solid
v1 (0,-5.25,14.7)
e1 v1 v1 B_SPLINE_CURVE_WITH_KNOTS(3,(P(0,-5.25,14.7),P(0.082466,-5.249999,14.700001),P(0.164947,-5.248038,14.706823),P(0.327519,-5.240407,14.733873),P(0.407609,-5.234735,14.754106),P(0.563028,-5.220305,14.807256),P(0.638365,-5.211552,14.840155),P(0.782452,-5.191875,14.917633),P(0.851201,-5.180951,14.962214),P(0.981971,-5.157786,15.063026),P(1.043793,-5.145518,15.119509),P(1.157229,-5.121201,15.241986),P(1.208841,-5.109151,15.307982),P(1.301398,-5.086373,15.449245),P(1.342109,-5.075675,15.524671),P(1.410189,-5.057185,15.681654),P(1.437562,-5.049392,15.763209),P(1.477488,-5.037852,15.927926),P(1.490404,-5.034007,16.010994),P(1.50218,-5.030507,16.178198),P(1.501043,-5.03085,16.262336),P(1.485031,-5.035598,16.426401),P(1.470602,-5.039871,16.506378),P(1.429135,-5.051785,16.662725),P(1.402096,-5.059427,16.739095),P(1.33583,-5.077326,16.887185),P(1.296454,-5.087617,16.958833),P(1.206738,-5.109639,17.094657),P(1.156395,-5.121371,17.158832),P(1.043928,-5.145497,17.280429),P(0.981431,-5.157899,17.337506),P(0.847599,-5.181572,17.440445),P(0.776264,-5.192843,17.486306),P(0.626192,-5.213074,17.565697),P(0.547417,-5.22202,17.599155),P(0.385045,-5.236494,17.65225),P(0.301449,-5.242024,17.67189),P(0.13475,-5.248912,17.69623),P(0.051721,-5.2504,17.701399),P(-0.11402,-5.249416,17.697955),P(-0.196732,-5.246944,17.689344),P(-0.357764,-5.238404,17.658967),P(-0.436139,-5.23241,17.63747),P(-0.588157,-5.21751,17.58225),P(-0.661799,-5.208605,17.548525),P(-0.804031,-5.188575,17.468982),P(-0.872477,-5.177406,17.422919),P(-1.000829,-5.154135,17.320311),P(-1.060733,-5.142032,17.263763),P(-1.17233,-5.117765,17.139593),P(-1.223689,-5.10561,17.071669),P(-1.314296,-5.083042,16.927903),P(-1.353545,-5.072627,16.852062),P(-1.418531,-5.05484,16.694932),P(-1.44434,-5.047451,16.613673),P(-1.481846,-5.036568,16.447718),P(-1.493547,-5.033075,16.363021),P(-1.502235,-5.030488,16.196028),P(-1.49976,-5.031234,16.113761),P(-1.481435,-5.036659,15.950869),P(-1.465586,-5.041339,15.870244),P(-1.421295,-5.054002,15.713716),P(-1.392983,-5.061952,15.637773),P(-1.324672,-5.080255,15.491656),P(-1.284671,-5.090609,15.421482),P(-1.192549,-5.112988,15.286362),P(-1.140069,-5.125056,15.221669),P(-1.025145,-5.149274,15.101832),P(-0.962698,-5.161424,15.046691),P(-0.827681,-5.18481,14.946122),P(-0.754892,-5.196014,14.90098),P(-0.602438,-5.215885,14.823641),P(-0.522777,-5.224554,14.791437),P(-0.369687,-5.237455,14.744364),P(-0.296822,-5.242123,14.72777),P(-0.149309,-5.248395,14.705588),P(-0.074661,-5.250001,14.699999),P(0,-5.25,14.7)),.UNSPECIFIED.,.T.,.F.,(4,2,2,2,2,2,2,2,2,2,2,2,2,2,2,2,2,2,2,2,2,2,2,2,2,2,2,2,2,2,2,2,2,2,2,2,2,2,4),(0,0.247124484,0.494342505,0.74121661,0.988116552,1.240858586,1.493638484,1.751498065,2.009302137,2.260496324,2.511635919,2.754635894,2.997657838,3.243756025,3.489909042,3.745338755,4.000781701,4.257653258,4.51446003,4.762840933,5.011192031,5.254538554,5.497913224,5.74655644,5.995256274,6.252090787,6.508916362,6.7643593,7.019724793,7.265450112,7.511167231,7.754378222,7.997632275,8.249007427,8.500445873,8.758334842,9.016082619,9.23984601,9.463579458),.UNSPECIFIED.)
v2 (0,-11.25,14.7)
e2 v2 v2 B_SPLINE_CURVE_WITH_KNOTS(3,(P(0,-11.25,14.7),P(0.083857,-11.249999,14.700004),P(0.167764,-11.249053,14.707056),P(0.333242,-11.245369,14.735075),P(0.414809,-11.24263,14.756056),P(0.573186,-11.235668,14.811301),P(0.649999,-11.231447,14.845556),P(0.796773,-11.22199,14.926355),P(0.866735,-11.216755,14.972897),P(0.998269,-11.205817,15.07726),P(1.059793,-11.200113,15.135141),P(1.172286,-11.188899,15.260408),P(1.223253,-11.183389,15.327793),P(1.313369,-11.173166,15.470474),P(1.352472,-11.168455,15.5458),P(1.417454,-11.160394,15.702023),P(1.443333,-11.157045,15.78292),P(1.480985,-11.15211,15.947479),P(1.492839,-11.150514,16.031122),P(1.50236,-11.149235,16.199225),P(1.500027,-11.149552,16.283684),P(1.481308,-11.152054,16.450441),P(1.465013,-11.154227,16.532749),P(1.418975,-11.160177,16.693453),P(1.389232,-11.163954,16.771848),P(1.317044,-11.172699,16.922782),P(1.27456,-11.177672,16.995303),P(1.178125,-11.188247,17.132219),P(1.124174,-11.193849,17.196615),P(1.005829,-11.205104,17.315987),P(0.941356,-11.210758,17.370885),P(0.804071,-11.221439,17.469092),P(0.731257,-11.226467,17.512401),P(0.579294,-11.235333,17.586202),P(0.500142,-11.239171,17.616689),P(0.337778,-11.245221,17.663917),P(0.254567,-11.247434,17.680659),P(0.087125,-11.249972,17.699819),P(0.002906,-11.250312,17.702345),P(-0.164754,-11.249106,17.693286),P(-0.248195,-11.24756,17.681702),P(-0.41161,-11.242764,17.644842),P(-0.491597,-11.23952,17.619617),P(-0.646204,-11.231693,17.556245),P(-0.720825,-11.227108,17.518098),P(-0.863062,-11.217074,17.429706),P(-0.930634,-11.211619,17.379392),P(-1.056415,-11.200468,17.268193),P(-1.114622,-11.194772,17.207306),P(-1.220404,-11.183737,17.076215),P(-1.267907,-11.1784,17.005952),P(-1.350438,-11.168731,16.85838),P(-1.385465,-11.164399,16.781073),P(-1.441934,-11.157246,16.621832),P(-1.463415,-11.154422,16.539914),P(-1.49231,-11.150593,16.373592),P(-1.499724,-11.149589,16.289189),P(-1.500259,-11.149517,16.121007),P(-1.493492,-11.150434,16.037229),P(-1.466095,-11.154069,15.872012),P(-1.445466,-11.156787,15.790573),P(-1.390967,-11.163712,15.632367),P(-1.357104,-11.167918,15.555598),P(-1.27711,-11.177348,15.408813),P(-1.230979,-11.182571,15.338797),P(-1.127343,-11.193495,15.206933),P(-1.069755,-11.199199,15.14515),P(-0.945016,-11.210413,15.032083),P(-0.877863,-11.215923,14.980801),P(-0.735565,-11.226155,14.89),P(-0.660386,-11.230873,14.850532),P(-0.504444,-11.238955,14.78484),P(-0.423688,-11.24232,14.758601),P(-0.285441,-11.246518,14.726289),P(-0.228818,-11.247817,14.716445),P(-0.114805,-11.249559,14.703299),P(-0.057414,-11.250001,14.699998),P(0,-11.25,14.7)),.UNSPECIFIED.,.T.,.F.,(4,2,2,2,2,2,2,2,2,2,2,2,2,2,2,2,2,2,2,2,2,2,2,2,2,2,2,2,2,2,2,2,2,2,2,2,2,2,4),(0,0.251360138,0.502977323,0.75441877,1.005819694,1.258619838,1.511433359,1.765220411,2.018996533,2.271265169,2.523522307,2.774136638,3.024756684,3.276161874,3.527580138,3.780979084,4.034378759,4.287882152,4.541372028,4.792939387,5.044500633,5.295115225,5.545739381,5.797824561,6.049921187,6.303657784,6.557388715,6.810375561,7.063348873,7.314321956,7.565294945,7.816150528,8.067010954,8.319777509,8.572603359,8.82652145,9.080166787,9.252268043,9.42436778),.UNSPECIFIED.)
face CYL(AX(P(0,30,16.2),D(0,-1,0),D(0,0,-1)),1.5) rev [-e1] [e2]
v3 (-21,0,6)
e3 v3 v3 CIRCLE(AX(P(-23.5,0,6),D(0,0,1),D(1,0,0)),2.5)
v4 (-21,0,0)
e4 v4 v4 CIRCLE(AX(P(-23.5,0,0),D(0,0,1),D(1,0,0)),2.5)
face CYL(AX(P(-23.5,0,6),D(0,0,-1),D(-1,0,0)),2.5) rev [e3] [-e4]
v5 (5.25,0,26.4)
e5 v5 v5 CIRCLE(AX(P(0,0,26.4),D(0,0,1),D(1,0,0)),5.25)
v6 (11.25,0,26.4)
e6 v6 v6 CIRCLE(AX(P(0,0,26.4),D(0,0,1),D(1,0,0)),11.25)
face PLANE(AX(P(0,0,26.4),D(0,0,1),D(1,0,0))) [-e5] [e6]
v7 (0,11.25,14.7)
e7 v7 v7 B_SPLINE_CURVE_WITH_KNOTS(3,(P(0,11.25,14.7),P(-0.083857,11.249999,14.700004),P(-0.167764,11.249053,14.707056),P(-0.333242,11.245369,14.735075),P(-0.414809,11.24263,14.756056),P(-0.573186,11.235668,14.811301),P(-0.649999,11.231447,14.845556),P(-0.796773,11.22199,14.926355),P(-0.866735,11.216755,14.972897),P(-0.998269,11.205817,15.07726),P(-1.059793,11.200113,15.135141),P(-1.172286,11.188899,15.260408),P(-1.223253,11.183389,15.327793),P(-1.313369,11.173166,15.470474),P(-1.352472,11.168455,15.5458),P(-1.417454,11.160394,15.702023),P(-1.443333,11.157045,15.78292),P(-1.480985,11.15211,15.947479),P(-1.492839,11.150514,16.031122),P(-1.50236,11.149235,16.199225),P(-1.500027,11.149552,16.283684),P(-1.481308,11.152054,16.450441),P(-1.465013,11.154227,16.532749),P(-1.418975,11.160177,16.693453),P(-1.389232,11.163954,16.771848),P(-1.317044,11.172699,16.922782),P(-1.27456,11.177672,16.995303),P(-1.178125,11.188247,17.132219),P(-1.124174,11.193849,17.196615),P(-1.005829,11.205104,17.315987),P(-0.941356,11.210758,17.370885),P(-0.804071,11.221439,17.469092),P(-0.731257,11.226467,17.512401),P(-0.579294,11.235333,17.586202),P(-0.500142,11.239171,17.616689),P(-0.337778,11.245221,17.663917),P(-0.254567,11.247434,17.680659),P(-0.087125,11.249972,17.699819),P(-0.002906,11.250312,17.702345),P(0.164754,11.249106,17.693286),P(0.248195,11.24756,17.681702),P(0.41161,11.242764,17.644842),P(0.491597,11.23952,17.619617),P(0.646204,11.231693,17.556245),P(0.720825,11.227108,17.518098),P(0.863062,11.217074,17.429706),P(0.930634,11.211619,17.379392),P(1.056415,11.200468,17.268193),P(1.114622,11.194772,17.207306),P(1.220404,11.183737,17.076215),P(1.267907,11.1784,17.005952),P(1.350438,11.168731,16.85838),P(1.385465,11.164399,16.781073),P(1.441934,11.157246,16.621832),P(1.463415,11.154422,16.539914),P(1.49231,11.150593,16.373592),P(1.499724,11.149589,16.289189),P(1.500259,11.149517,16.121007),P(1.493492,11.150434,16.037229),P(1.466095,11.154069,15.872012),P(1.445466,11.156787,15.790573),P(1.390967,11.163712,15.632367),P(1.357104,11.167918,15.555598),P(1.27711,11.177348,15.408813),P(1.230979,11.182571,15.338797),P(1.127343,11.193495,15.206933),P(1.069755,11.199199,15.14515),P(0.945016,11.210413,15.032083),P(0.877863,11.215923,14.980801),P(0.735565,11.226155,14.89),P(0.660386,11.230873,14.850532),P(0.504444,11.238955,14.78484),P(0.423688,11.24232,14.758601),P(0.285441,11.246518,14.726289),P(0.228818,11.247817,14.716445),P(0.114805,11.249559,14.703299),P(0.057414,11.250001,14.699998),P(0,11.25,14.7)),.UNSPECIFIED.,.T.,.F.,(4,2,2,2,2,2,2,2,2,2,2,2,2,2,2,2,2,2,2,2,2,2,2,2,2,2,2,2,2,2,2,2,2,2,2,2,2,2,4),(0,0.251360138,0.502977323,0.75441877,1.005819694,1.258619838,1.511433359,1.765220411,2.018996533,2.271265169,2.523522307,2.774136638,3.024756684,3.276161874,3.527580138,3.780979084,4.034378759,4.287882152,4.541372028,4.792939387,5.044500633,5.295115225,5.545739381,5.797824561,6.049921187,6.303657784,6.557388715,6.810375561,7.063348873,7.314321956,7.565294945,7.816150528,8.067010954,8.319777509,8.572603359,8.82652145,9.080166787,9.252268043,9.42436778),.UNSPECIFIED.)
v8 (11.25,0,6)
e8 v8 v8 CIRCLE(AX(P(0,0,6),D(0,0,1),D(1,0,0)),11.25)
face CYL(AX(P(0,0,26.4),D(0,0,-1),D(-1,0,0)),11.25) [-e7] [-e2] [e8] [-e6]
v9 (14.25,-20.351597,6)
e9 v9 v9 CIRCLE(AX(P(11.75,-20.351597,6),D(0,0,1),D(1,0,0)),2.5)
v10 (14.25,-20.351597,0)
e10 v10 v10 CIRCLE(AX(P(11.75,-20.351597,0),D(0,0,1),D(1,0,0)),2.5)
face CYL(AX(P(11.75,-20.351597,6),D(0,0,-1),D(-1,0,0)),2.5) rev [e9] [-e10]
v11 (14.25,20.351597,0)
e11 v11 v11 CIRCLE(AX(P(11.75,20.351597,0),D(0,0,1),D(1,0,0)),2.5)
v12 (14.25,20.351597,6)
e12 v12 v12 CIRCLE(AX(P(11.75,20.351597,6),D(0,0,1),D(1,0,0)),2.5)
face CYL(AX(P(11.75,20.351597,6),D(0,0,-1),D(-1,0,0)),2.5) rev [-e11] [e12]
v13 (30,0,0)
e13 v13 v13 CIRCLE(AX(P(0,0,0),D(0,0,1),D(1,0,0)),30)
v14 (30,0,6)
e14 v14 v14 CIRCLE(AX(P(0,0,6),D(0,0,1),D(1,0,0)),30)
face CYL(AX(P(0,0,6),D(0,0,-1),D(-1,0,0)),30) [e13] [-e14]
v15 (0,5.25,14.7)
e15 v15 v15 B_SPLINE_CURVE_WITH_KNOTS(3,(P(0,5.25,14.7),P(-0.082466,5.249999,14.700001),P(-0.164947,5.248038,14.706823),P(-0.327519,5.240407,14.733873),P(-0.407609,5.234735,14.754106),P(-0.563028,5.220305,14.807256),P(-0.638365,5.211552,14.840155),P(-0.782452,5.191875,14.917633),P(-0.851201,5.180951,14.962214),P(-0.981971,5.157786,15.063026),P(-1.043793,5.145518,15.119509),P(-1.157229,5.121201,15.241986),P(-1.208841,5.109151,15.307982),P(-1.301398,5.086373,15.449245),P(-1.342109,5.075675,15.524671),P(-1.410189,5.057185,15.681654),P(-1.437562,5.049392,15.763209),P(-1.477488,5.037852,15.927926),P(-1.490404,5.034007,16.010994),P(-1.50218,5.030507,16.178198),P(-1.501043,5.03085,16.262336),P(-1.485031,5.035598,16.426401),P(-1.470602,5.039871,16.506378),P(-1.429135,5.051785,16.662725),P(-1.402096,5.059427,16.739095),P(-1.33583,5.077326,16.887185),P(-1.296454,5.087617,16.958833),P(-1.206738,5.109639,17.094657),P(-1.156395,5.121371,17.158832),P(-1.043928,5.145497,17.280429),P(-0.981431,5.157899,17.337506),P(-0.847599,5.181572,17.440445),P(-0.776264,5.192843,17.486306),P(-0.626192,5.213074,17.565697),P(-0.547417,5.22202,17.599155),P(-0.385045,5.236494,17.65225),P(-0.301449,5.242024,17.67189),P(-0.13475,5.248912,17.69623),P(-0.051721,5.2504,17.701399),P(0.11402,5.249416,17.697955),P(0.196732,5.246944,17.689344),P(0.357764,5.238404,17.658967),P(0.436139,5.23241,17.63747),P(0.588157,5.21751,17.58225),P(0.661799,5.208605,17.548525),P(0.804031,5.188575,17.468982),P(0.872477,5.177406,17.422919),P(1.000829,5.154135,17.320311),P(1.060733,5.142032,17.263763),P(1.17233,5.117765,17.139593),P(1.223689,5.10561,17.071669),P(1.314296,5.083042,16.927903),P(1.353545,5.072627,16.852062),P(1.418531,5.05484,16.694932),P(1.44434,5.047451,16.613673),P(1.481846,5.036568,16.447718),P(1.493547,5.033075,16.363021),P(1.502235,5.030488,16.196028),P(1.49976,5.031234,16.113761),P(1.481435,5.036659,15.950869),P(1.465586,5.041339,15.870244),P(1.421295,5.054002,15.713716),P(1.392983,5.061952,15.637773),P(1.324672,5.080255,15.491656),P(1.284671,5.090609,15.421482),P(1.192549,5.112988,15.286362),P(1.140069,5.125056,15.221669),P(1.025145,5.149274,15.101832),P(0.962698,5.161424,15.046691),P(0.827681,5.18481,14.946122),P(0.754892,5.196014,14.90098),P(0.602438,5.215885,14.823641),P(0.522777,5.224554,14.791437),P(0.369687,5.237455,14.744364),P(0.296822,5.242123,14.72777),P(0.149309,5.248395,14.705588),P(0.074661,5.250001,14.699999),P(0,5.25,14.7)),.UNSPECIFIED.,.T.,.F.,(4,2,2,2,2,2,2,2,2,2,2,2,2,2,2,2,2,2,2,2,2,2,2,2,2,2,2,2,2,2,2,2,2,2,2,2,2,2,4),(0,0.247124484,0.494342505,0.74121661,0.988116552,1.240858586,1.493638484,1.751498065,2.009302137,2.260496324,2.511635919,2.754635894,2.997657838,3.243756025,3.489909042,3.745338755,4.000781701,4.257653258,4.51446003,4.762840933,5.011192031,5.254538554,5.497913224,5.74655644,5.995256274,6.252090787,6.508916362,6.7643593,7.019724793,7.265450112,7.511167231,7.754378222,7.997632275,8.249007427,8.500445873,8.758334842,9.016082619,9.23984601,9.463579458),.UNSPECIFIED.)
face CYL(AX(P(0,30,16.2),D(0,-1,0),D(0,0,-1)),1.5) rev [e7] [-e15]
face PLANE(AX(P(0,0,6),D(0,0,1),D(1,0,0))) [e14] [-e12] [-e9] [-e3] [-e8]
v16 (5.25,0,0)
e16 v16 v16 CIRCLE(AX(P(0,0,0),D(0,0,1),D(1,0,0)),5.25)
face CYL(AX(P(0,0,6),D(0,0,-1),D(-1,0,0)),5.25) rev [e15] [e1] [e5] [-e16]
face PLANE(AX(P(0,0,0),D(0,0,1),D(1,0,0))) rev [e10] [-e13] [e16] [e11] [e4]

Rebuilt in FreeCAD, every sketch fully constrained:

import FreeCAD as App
import Part
import Sketcher
Q = App.Units.Quantity

doc = App.newDocument("Part")
body = doc.addObject("PartDesign::Body", "Body")

sketch1 = body.newObject("Sketcher::SketchObject", "Sketch")
sketch1.AttachmentSupport = (doc.getObject("XY_Plane"), [""])
sketch1.MapMode = "FlatFace"
sketch1.addGeometry(Part.Circle(App.Vector(0, 0, 0), App.Vector(0, 0, 1), 30), False)
sketch1.addGeometry(Part.Circle(App.Vector(11.75, -20.351597, 0), App.Vector(0, 0, 1), 2.5), False)
sketch1.addGeometry(Part.Circle(App.Vector(-23.5, 0, 0), App.Vector(0, 0, 1), 2.5), False)
sketch1.addGeometry(Part.Circle(App.Vector(0, 0, 0), App.Vector(0, 0, 1), 5.25), False)
sketch1.addGeometry(Part.Circle(App.Vector(11.75, 20.351597, 0), App.Vector(0, 0, 1), 2.5), False)
sketch1.addConstraint(Sketcher.Constraint("Coincident", 0, 3, -1, 1))
sketch1.addConstraint(Sketcher.Constraint("Coincident", 3, 3, -1, 1))
sketch1.addConstraint(Sketcher.Constraint("Equal", 1, 2))
sketch1.addConstraint(Sketcher.Constraint("Equal", 2, 4))
sketch1.addConstraint(Sketcher.Constraint("Symmetric", 1, 3, 4, 3, -1))
sketch1.addConstraint(Sketcher.Constraint("PointOnObject", 2, 3, -1))
sketch1.addConstraint(Sketcher.Constraint("Diameter", 0, Q("60 mm")))
sketch1.addConstraint(Sketcher.Constraint("Diameter", 1, Q("5 mm")))
sketch1.addConstraint(Sketcher.Constraint("Diameter", 3, Q("10.5 mm")))
sketch1.addConstraint(Sketcher.Constraint("DistanceX", 2, 3, -1, 1, Q("23.5 mm")))
sketch1.addConstraint(Sketcher.Constraint("DistanceX", -1, 1, 1, 3, Q("11.75 mm")))
sketch1.addConstraint(Sketcher.Constraint("DistanceY", 1, 3, -1, 1, Q("20.351597 mm")))
pad1 = body.newObject("PartDesign::Pad", "Pad")
pad1.Profile = sketch1
pad1.Length = 6

sketch2 = body.newObject("Sketcher::SketchObject", "Sketch001")
sketch2.AttachmentSupport = (doc.getObject("XY_Plane"), [""])
sketch2.MapMode = "FlatFace"
sketch2.AttachmentOffset = App.Placement(App.Vector(0, 0, 6), App.Rotation())
sketch2.addGeometry(Part.Circle(App.Vector(0, 0, 0), App.Vector(0, 0, 1), 11.25), False)
sketch2.addGeometry(Part.Circle(App.Vector(0, 0, 0), App.Vector(0, 0, 1), 5.25), False)
sketch2.addConstraint(Sketcher.Constraint("Coincident", 0, 3, -1, 1))
sketch2.addConstraint(Sketcher.Constraint("Coincident", 1, 3, -1, 1))
sketch2.addConstraint(Sketcher.Constraint("Diameter", 0, Q("22.5 mm")))
sketch2.addConstraint(Sketcher.Constraint("Diameter", 1, Q("10.5 mm")))
pad2 = body.newObject("PartDesign::Pad", "Pad001")
pad2.Profile = sketch2
pad2.Length = 20.4

sketch3 = body.newObject("Sketcher::SketchObject", "Sketch002")
sketch3.AttachmentSupport = (doc.getObject("XZ_Plane"), [""])
sketch3.MapMode = "FlatFace"
sketch3.addGeometry(Part.Circle(App.Vector(0, 16.2, 0), App.Vector(0, 0, 1), 1.5), False)
sketch3.addConstraint(Sketcher.Constraint("PointOnObject", 0, 3, -2))
sketch3.addConstraint(Sketcher.Constraint("Diameter", 0, Q("3 mm")))
sketch3.addConstraint(Sketcher.Constraint("DistanceY", -1, 1, 0, 3, Q("16.2 mm")))
pocket1 = body.newObject("PartDesign::Pocket", "Pocket")
pocket1.Profile = sketch3
pocket1.Type = "ThroughAll"
pocket1.Midplane = True

doc.recompute()
